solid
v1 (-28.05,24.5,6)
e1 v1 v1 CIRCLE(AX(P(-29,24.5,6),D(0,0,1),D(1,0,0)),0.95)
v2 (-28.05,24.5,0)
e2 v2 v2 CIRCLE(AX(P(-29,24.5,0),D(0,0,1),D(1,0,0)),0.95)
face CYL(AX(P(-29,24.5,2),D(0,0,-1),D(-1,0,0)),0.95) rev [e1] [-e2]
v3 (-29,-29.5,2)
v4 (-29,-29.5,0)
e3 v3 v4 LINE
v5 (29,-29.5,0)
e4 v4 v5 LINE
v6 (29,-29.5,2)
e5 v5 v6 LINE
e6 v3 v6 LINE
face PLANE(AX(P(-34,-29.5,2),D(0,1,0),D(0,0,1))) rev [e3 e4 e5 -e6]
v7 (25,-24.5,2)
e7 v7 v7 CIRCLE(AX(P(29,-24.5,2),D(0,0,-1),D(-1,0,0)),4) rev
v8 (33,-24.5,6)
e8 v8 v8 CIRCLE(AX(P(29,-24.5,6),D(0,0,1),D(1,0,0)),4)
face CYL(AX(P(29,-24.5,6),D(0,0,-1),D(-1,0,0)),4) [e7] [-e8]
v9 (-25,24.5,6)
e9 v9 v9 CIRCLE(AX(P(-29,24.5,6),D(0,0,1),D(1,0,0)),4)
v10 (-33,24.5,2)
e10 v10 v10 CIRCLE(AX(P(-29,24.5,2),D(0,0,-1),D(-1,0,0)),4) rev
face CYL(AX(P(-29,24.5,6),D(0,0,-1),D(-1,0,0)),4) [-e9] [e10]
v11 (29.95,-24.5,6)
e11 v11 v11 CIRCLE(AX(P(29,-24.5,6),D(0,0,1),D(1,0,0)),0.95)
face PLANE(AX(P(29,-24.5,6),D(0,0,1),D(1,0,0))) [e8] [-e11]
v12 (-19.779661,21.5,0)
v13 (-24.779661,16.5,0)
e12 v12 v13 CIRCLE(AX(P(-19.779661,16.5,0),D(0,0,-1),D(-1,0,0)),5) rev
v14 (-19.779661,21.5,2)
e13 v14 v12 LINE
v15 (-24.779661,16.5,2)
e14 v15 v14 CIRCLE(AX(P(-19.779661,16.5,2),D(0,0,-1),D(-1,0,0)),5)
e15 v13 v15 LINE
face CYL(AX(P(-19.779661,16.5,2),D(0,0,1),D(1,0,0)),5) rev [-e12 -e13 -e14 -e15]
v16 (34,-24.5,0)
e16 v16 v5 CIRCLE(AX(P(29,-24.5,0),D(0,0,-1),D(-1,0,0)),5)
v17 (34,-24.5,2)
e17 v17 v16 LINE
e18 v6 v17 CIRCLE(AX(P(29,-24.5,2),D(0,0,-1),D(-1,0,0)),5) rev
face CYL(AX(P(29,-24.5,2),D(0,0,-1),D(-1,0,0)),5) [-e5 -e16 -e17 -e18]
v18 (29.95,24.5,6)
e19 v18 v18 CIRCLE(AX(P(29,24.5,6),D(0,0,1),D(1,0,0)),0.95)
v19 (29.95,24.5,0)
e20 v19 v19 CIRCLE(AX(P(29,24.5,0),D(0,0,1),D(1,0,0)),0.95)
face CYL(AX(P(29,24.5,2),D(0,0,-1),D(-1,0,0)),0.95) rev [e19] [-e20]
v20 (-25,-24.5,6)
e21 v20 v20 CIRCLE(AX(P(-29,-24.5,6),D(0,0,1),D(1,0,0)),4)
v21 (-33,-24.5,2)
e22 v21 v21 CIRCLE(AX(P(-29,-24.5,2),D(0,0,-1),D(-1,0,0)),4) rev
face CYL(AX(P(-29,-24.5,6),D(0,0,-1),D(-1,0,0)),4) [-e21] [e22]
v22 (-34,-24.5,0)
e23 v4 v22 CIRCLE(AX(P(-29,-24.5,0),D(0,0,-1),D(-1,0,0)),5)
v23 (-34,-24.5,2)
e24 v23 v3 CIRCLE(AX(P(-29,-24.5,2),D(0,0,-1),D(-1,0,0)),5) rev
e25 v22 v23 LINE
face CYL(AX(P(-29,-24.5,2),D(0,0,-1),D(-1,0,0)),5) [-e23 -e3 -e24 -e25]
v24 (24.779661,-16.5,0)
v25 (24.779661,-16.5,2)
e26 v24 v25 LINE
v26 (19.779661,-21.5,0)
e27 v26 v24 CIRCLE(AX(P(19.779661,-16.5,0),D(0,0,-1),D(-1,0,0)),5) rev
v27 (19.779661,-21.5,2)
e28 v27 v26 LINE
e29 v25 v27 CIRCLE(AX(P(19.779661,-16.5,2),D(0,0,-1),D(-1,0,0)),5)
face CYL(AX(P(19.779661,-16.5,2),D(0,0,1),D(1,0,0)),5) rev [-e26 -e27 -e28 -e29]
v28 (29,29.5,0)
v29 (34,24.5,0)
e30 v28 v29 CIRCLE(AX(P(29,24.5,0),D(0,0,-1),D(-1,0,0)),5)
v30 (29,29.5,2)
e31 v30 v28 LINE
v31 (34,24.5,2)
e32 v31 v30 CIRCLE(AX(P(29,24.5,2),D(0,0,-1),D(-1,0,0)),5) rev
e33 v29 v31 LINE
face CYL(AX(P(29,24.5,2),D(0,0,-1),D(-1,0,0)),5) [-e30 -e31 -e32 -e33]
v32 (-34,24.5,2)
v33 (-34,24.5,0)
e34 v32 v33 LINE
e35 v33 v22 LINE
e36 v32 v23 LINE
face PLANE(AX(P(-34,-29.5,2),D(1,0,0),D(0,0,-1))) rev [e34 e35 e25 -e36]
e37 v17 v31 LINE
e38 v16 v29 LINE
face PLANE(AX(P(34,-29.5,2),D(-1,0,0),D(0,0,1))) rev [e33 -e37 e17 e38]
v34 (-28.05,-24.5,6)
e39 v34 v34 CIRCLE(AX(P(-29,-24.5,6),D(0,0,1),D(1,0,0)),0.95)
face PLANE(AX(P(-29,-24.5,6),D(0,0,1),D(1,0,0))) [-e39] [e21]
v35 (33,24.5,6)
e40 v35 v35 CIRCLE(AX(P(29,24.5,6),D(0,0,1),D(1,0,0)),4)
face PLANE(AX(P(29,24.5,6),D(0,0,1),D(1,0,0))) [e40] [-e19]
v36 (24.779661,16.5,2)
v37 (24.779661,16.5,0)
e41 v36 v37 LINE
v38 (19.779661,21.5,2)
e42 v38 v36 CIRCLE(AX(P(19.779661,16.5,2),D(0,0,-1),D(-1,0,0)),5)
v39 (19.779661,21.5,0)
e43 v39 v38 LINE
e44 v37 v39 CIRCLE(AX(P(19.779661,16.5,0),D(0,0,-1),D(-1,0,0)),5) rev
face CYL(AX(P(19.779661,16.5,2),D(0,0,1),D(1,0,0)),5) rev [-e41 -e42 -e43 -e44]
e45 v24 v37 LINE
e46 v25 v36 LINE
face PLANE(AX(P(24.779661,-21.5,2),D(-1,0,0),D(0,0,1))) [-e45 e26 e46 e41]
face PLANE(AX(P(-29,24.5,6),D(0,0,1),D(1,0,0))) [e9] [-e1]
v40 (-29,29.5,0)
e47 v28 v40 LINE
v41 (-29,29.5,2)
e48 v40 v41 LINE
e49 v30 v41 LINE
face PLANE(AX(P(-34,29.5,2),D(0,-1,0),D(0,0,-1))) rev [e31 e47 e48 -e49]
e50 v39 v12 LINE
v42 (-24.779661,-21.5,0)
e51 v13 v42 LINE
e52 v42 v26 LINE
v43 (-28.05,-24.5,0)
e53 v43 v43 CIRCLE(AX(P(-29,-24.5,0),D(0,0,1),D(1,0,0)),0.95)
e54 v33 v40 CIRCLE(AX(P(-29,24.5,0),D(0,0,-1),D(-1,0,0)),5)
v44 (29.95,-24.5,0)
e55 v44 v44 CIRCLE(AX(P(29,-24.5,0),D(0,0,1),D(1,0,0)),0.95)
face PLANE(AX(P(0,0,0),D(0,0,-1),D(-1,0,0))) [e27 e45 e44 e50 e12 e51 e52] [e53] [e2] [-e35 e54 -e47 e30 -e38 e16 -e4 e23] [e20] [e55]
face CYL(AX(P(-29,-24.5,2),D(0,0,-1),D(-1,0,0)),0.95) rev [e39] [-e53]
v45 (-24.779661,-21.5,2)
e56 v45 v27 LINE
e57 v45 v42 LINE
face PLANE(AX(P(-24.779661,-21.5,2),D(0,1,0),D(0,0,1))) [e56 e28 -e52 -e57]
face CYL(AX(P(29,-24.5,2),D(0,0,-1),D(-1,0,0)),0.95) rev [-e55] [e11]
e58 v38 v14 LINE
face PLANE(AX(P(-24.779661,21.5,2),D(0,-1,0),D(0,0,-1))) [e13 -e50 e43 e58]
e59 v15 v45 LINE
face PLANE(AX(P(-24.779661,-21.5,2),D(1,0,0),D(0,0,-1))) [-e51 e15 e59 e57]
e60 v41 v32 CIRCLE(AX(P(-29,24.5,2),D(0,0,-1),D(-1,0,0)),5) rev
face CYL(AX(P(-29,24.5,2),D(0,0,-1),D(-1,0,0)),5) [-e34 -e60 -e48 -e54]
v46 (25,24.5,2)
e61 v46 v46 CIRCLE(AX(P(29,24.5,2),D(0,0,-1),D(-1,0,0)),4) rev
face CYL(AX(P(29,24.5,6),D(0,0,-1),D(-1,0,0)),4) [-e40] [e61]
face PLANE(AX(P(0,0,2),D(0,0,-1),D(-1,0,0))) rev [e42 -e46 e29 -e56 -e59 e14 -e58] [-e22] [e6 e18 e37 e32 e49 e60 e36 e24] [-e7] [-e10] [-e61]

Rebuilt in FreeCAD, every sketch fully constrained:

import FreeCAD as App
import Part
import Sketcher

V = App.Vector


def edges_at(feature, points):
    """Names of the edges that pass closest to the given points."""
    edges = feature.Shape.Edges
    near = lambda p: min(range(len(edges)), key=lambda i: edges[i].distToShape(Part.Vertex(*p))[0])
    return sorted({f"Edge{near(p) + 1}" for p in points})

doc = App.newDocument("Part")
body = doc.addObject("PartDesign::Body", "Body")

# Sketch on XY plane
sketch1 = body.newObject("Sketcher::SketchObject", "Sketch")
sketch1.AttachmentSupport = (doc.getObject("XY_Plane"), [""])
sketch1.MapMode = "FlatFace"
sketch1.addGeometry(Part.LineSegment(V(-34, 29.5, 0), V(-34, -29.5, 0)), False)
sketch1.addGeometry(Part.LineSegment(V(-34, -29.5, 0), V(34, -29.5, 0)), False)
sketch1.addGeometry(Part.LineSegment(V(34, -29.5, 0), V(34, 29.5, 0)), False)
sketch1.addGeometry(Part.LineSegment(V(34, 29.5, 0), V(-34, 29.5, 0)), False)
sketch1.addGeometry(Part.Circle(V(-29, -24.5, 0), V(0, 0, 1), 0.9), False)
sketch1.addGeometry(Part.Circle(V(29, -24.5, 0), V(0, 0, 1), 0.9), False)
sketch1.addGeometry(Part.LineSegment(V(24.8, -21.5, 0), V(-24.8, -21.5, 0)), False)
sketch1.addGeometry(Part.LineSegment(V(-24.8, -21.5, 0), V(-24.8, 21.5, 0)), False)
sketch1.addGeometry(Part.LineSegment(V(-24.8, 21.5, 0), V(24.8, 21.5, 0)), False)
sketch1.addGeometry(Part.LineSegment(V(24.8, 21.5, 0), V(24.8, -21.5, 0)), False)
sketch1.addGeometry(Part.Circle(V(-29, 24.5, 0), V(0, 0, 1), 0.9), False)
sketch1.addGeometry(Part.Circle(V(29, 24.5, 0), V(0, 0, 1), 0.9), False)
sketch1.addConstraint(Sketcher.Constraint("Coincident", 0, 2, 1, 1))
sketch1.addConstraint(Sketcher.Constraint("Coincident", 1, 2, 2, 1))
sketch1.addConstraint(Sketcher.Constraint("Coincident", 2, 2, 3, 1))
sketch1.addConstraint(Sketcher.Constraint("Coincident", 3, 2, 0, 1))
sketch1.addConstraint(Sketcher.Constraint("Coincident", 6, 2, 7, 1))
sketch1.addConstraint(Sketcher.Constraint("Coincident", 7, 2, 8, 1))
sketch1.addConstraint(Sketcher.Constraint("Coincident", 8, 2, 9, 1))
sketch1.addConstraint(Sketcher.Constraint("Coincident", 9, 2, 6, 1))
sketch1.addConstraint(Sketcher.Constraint("Vertical", 0))
sketch1.addConstraint(Sketcher.Constraint("Horizontal", 1))
sketch1.addConstraint(Sketcher.Constraint("Vertical", 2))
sketch1.addConstraint(Sketcher.Constraint("Horizontal", 3))
sketch1.addConstraint(Sketcher.Constraint("Horizontal", 6))
sketch1.addConstraint(Sketcher.Constraint("Vertical", 7))
sketch1.addConstraint(Sketcher.Constraint("Horizontal", 8))
sketch1.addConstraint(Sketcher.Constraint("Vertical", 9))
sketch1.addConstraint(Sketcher.Constraint("Equal", 4, 5))
sketch1.addConstraint(Sketcher.Constraint("Equal", 5, 10))
sketch1.addConstraint(Sketcher.Constraint("Equal", 10, 11))
sketch1.addConstraint(Sketcher.Constraint("Symmetric", 5, 3, 10, 3, -1, 1))
sketch1.addConstraint(Sketcher.Constraint("Symmetric", 4, 3, 11, 3, -1, 1))
sketch1.addConstraint(Sketcher.Constraint("Symmetric", 0, 2, 2, 2, -1, 1))
sketch1.addConstraint(Sketcher.Constraint("Symmetric", 6, 2, 8, 2, -1, 1))
sketch1.addConstraint(Sketcher.Constraint("Symmetric", 4, 3, 5, 3, -2))
sketch1.addConstraint(Sketcher.Constraint("Diameter", 4, 1.9))
sketch1.addConstraint(Sketcher.Constraint("DistanceX", 1, 1, 1, 2, 68.0))
sketch1.addConstraint(Sketcher.Constraint("DistanceY", 0, 2, 0, 1, 59.0))
sketch1.addConstraint(Sketcher.Constraint("DistanceY", 7, 1, 7, 2, 43.0))
sketch1.addConstraint(Sketcher.Constraint("DistanceX", 4, 3, -1, 1, 29.0))
sketch1.addConstraint(Sketcher.Constraint("DistanceY", 4, 3, 10, 3, 49.0))
sketch1.addConstraint(Sketcher.Constraint("DistanceX", 6, 2, 6, 1, 49.559322))
pad1 = body.newObject("PartDesign::Pad", "Pad")
pad1.Profile = sketch1
pad1.Length = 2

# Sketch on XY plane
sketch2 = body.newObject("Sketcher::SketchObject", "Sketch001")
sketch2.AttachmentSupport = (doc.getObject("XY_Plane"), [""])
sketch2.MapMode = "FlatFace"
sketch2.AttachmentOffset = App.Placement(V(0, 0, 2), App.Rotation())
sketch2.addGeometry(Part.Circle(V(-29, 24.5, 0), V(0, 0, 1), 4), False)
sketch2.addGeometry(Part.Circle(V(-29, 24.5, 0), V(0, 0, 1), 0.9), False)
sketch2.addGeometry(Part.Circle(V(29, 24.5, 0), V(0, 0, 1), 4), False)
sketch2.addGeometry(Part.Circle(V(29, 24.5, 0), V(0, 0, 1), 0.9), False)
sketch2.addGeometry(Part.Circle(V(29, -24.5, 0), V(0, 0, 1), 4), False)
sketch2.addGeometry(Part.Circle(V(29, -24.5, 0), V(0, 0, 1), 0.9), False)
sketch2.addGeometry(Part.Circle(V(-29, -24.5, 0), V(0, 0, 1), 4), False)
sketch2.addGeometry(Part.Circle(V(-29, -24.5, 0), V(0, 0, 1), 0.9), False)
sketch2.addConstraint(Sketcher.Constraint("Coincident", 1, 3, 0, 3))
sketch2.addConstraint(Sketcher.Constraint("Coincident", 3, 3, 2, 3))
sketch2.addConstraint(Sketcher.Constraint("Coincident", 5, 3, 4, 3))
sketch2.addConstraint(Sketcher.Constraint("Coincident", 7, 3, 6, 3))
sketch2.addConstraint(Sketcher.Constraint("Equal", 0, 2))
sketch2.addConstraint(Sketcher.Constraint("Equal", 1, 3))
sketch2.addConstraint(Sketcher.Constraint("Equal", 2, 4))
sketch2.addConstraint(Sketcher.Constraint("Equal", 3, 5))
sketch2.addConstraint(Sketcher.Constraint("Equal", 4, 6))
sketch2.addConstraint(Sketcher.Constraint("Equal", 5, 7))
sketch2.addConstraint(Sketcher.Constraint("Symmetric", 0, 3, 4, 3, -1, 1))
sketch2.addConstraint(Sketcher.Constraint("Symmetric", 2, 3, 6, 3, -1, 1))
sketch2.addConstraint(Sketcher.Constraint("Symmetric", 0, 3, 2, 3, -2))
sketch2.addConstraint(Sketcher.Constraint("Diameter", 0, 8.0))
sketch2.addConstraint(Sketcher.Constraint("Diameter", 1, 1.9))
sketch2.addConstraint(Sketcher.Constraint("DistanceX", 0, 3, -1, 1, 29.0))
sketch2.addConstraint(Sketcher.Constraint("DistanceY", 4, 3, 2, 3, 49.0))
pad2 = body.newObject("PartDesign::Pad", "Pad001")
pad2.Profile = sketch2
pad2.Length = 4
doc.recompute()

fillet = body.newObject("PartDesign::Fillet", "Fillet")
fillet.Base = (pad2, edges_at(pad2, [
    (24.78, -21.5, 1),
    (24.78, 21.5, 1),
    (-24.78, 21.5, 1),
    (34, -29.5, 1),
    (-34, -29.5, 1),
    (-34, 29.5, 1),
    (34, 29.5, 1),
]))
fillet.Radius = 5

doc.recompute()
